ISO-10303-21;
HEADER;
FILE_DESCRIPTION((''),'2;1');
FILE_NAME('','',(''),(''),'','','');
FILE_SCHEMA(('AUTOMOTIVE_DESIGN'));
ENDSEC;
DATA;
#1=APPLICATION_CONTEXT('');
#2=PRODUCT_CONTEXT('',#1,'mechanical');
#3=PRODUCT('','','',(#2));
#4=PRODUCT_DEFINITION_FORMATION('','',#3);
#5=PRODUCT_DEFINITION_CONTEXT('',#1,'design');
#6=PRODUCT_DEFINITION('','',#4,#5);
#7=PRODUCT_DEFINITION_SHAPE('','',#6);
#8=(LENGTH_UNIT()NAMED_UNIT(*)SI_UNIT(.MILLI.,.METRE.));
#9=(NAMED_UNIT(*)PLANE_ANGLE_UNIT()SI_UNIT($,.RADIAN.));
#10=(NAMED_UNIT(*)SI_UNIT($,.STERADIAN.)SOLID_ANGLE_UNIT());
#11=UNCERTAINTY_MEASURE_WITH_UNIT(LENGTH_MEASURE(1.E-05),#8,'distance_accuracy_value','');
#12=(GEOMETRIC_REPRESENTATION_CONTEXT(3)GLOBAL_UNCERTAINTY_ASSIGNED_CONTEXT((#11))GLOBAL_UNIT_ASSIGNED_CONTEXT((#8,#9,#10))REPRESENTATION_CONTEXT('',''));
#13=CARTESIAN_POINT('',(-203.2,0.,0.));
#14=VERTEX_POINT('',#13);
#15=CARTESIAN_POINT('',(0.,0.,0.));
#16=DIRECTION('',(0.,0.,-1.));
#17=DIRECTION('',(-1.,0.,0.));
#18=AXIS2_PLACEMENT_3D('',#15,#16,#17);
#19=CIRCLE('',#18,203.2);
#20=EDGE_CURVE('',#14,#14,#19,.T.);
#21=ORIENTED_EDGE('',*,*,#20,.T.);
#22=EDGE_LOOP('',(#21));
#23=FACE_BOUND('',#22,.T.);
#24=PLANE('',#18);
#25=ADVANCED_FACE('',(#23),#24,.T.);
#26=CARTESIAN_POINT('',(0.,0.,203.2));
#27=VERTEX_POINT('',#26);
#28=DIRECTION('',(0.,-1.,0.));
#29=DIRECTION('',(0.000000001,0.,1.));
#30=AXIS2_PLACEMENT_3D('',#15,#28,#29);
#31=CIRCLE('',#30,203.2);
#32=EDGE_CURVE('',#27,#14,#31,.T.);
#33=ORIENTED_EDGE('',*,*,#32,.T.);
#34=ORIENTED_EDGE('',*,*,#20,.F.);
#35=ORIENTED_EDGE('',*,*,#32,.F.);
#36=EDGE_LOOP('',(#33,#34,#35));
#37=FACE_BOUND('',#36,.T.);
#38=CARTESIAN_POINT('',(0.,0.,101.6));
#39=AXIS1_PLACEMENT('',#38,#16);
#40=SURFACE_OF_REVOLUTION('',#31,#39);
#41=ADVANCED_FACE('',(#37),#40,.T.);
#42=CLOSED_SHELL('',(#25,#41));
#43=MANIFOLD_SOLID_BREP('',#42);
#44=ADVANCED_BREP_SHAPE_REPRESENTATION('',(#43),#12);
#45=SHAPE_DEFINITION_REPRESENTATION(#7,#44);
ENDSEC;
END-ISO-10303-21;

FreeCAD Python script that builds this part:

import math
import FreeCAD as App
import Part
import Sketcher

V = App.Vector
Q = App.Units.Quantity

doc = App.newDocument("Part")
body = doc.addObject("PartDesign::Body", "Body")

sketch1 = body.newObject("Sketcher::SketchObject", "Sketch")
sketch1.AttachmentSupport = (doc.getObject("XZ_Plane"), [""])
sketch1.MapMode = "FlatFace"
sketch1.addGeometry([
    Part.ArcOfCircle(Part.Circle(V(0, 0, 0), V(0, 0, 1), 203), math.radians(90), math.radians(180)),
    Part.LineSegment(V(-203, 0, 0), V(0, 0, 0)),
    Part.LineSegment(V(0, 0, 0), V(0, 203, 0)),
], False)
sketch1.addConstraint([
    Sketcher.Constraint("Coincident", 0, 2, 1, 1),
    Sketcher.Constraint("Coincident", 1, 2, 2, 1),
    Sketcher.Constraint("Coincident", 2, 2, 0, 1),
    Sketcher.Constraint("Horizontal", 1),
    Sketcher.Constraint("Vertical", 2),
    Sketcher.Constraint("Coincident", 0, 3, -1, 1),
    Sketcher.Constraint("Coincident", 1, 2, -1, 1),
    Sketcher.Constraint("Radius", 0, Q("8 in")),
])
revolution = body.newObject("PartDesign::Revolution", "Revolution")
revolution.Profile = sketch1
revolution.ReferenceAxis = (sketch1, ["V_Axis"])
revolution.Angle = 360

doc.recompute()
